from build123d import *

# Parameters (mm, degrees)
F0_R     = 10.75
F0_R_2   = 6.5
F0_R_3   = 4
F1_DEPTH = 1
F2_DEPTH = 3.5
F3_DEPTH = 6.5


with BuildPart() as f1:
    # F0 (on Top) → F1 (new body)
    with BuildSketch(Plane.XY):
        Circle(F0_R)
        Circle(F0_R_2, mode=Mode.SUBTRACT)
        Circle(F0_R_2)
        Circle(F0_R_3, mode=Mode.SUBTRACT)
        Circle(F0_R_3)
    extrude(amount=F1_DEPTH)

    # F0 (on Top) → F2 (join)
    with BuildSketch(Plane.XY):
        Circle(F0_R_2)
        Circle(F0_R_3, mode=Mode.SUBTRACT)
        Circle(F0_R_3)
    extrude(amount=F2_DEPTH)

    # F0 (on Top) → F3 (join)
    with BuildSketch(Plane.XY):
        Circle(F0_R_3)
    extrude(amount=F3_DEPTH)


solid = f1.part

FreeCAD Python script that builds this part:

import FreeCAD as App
import Part
import Sketcher

doc = App.newDocument("Part")
params = doc.addObject("Spreadsheet::Sheet", "Params")
for row, (alias, value) in enumerate([
    ("sketch1_diameter", "21.5 mm"),
    ("pad1_length", "1 mm"),
    ("sketch2_diameter", "13 mm"),
    ("pad2_length", "3.5 mm"),
    ("sketch3_diameter", "8 mm"),
    ("pad3_length", "6.5 mm"),
], start=1):
    params.set(f"A{row}", alias)
    params.set(f"B{row}", "=" + value)
    params.setAlias(f"B{row}", alias)

body = doc.addObject("PartDesign::Body", "Body")

sketch1 = doc.addObject("Sketcher::SketchObject", "Sketch")
body.addObject(sketch1)
sketch1.AttachmentSupport = (doc.XY_Plane, [""])
sketch1.MapMode = "FlatFace"
sketch1.addGeometry(Part.Circle(App.Vector(0, 0, 0), App.Vector(0, 0, 1), 10.75), False)
sketch1.addConstraint([
    Sketcher.Constraint("Coincident", 0, 3, -1, 1),
    Sketcher.Constraint("Diameter", 0, 21.5),
])
sketch1.setExpression("Constraints[1]", "Params.sketch1_diameter")
pad1 = doc.addObject("PartDesign::Pad", "Pad")
body.addObject(pad1)
pad1.Profile = sketch1
pad1.setExpression("Length", "Params.pad1_length")

sketch2 = doc.addObject("Sketcher::SketchObject", "Sketch001")
body.addObject(sketch2)
sketch2.AttachmentSupport = (doc.XY_Plane, [""])
sketch2.MapMode = "FlatFace"
sketch2.addGeometry(Part.Circle(App.Vector(0, 0, 0), App.Vector(0, 0, 1), 6.5), False)
sketch2.addConstraint([
    Sketcher.Constraint("Coincident", 0, 3, -1, 1),
    Sketcher.Constraint("Diameter", 0, 13.0),
])
sketch2.setExpression("Constraints[1]", "Params.sketch2_diameter")
pad2 = doc.addObject("PartDesign::Pad", "Pad001")
body.addObject(pad2)
pad2.Profile = sketch2
pad2.setExpression("Length", "Params.pad2_length")

sketch3 = doc.addObject("Sketcher::SketchObject", "Sketch002")
body.addObject(sketch3)
sketch3.AttachmentSupport = (doc.XY_Plane, [""])
sketch3.MapMode = "FlatFace"
sketch3.addGeometry(Part.Circle(App.Vector(0, 0, 0), App.Vector(0, 0, 1), 4), False)
sketch3.addConstraint([
    Sketcher.Constraint("Coincident", 0, 3, -1, 1),
    Sketcher.Constraint("Diameter", 0, 8.0),
])
sketch3.setExpression("Constraints[1]", "Params.sketch3_diameter")
pad3 = doc.addObject("PartDesign::Pad", "Pad002")
body.addObject(pad3)
pad3.Profile = sketch3
pad3.setExpression("Length", "Params.pad3_length")

doc.recompute()
